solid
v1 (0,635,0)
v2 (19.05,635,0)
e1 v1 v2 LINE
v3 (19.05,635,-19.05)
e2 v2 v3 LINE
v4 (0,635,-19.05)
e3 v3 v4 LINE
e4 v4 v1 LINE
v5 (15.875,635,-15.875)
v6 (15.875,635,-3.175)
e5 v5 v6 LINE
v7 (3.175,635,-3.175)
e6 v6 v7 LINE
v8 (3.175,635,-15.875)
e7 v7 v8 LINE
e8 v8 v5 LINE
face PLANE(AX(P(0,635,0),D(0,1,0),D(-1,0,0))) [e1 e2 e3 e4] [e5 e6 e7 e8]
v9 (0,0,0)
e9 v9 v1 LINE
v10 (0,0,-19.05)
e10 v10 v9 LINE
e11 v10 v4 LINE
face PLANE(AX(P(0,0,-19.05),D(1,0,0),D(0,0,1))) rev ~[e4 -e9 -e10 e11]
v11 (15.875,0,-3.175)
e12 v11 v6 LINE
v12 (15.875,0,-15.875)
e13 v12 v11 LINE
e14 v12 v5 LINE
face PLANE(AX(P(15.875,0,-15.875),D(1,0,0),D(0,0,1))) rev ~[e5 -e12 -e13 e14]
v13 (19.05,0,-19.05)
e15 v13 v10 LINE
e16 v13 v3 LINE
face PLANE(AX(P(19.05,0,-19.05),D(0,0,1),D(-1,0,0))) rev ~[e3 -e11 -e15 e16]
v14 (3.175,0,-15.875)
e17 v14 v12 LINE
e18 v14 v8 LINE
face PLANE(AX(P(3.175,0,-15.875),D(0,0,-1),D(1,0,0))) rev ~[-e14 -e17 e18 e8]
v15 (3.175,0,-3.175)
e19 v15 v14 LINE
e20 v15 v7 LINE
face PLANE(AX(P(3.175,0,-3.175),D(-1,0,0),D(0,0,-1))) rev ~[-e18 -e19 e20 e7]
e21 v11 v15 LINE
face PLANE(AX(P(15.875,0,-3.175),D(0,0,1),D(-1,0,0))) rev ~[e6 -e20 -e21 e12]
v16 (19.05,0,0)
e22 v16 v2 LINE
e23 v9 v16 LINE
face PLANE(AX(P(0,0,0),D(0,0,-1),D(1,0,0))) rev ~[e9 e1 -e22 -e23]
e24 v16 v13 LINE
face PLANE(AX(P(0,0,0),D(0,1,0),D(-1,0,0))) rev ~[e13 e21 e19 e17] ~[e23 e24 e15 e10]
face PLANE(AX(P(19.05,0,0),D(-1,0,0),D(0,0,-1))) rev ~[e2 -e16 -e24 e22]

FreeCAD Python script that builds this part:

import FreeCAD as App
import Part
import Sketcher
Q = App.Units.Quantity


def add_polygon(sketch, points):
    """Adds a closed chain of lines whose ends are joined by coincident constraints."""
    first, n = sketch.GeometryCount, len(points)
    for a, b in zip(points, points[1:] + points[:1]):
        sketch.addGeometry(Part.LineSegment(App.Vector(*a, 0), App.Vector(*b, 0)), False)
    for i in range(n):
        sketch.addConstraint(Sketcher.Constraint("Coincident", first + i, 2, first + (i + 1) % n, 1))

doc = App.newDocument("Part")
body = doc.addObject("PartDesign::Body", "Body")

# Sketch on XZ plane
sketch1 = doc.addObject("Sketcher::SketchObject", "Sketch")
body.addObject(sketch1)
sketch1.AttachmentSupport = (doc.XZ_Plane, [""])
sketch1.MapMode = "FlatFace"
add_polygon(sketch1, [(0, -19.05), (0, 0), (19.05, 0), (19.05, -19.05)])  # lines 0-3
add_polygon(sketch1, [(3.175, -3.175), (3.175, -15.875), (15.875, -15.875), (15.875, -3.175)])  # lines 4-7
sketch1.addConstraint(Sketcher.Constraint("Vertical", 0))
sketch1.addConstraint(Sketcher.Constraint("Horizontal", 1))
sketch1.addConstraint(Sketcher.Constraint("Vertical", 2))
sketch1.addConstraint(Sketcher.Constraint("Horizontal", 3))
sketch1.addConstraint(Sketcher.Constraint("Vertical", 4))
sketch1.addConstraint(Sketcher.Constraint("Horizontal", 5))
sketch1.addConstraint(Sketcher.Constraint("Vertical", 6))
sketch1.addConstraint(Sketcher.Constraint("Horizontal", 7))
sketch1.addConstraint(Sketcher.Constraint("Coincident", 0, 2, -1, 1))
sketch1.addConstraint(Sketcher.Constraint("Equal", 3, 0))
sketch1.addConstraint(Sketcher.Constraint("Equal", 7, 4))
sketch1.addConstraint(Sketcher.Constraint("DistanceX", 1, 1, 1, 2, Q("0.75 in")))
sketch1.addConstraint(Sketcher.Constraint("DistanceX", 5, 1, 5, 2, Q("0.5 in")))
sketch1.addConstraint(Sketcher.Constraint("DistanceX", -1, 1, 4, 2, Q("0.125 in")))
sketch1.addConstraint(Sketcher.Constraint("DistanceY", 6, 2, -1, 1, Q("0.125 in")))
pad1 = doc.addObject("PartDesign::Pad", "Pad")
body.addObject(pad1)
pad1.Profile = sketch1
pad1.Length = Q("25 in")
pad1.Reversed = True

doc.recompute()
